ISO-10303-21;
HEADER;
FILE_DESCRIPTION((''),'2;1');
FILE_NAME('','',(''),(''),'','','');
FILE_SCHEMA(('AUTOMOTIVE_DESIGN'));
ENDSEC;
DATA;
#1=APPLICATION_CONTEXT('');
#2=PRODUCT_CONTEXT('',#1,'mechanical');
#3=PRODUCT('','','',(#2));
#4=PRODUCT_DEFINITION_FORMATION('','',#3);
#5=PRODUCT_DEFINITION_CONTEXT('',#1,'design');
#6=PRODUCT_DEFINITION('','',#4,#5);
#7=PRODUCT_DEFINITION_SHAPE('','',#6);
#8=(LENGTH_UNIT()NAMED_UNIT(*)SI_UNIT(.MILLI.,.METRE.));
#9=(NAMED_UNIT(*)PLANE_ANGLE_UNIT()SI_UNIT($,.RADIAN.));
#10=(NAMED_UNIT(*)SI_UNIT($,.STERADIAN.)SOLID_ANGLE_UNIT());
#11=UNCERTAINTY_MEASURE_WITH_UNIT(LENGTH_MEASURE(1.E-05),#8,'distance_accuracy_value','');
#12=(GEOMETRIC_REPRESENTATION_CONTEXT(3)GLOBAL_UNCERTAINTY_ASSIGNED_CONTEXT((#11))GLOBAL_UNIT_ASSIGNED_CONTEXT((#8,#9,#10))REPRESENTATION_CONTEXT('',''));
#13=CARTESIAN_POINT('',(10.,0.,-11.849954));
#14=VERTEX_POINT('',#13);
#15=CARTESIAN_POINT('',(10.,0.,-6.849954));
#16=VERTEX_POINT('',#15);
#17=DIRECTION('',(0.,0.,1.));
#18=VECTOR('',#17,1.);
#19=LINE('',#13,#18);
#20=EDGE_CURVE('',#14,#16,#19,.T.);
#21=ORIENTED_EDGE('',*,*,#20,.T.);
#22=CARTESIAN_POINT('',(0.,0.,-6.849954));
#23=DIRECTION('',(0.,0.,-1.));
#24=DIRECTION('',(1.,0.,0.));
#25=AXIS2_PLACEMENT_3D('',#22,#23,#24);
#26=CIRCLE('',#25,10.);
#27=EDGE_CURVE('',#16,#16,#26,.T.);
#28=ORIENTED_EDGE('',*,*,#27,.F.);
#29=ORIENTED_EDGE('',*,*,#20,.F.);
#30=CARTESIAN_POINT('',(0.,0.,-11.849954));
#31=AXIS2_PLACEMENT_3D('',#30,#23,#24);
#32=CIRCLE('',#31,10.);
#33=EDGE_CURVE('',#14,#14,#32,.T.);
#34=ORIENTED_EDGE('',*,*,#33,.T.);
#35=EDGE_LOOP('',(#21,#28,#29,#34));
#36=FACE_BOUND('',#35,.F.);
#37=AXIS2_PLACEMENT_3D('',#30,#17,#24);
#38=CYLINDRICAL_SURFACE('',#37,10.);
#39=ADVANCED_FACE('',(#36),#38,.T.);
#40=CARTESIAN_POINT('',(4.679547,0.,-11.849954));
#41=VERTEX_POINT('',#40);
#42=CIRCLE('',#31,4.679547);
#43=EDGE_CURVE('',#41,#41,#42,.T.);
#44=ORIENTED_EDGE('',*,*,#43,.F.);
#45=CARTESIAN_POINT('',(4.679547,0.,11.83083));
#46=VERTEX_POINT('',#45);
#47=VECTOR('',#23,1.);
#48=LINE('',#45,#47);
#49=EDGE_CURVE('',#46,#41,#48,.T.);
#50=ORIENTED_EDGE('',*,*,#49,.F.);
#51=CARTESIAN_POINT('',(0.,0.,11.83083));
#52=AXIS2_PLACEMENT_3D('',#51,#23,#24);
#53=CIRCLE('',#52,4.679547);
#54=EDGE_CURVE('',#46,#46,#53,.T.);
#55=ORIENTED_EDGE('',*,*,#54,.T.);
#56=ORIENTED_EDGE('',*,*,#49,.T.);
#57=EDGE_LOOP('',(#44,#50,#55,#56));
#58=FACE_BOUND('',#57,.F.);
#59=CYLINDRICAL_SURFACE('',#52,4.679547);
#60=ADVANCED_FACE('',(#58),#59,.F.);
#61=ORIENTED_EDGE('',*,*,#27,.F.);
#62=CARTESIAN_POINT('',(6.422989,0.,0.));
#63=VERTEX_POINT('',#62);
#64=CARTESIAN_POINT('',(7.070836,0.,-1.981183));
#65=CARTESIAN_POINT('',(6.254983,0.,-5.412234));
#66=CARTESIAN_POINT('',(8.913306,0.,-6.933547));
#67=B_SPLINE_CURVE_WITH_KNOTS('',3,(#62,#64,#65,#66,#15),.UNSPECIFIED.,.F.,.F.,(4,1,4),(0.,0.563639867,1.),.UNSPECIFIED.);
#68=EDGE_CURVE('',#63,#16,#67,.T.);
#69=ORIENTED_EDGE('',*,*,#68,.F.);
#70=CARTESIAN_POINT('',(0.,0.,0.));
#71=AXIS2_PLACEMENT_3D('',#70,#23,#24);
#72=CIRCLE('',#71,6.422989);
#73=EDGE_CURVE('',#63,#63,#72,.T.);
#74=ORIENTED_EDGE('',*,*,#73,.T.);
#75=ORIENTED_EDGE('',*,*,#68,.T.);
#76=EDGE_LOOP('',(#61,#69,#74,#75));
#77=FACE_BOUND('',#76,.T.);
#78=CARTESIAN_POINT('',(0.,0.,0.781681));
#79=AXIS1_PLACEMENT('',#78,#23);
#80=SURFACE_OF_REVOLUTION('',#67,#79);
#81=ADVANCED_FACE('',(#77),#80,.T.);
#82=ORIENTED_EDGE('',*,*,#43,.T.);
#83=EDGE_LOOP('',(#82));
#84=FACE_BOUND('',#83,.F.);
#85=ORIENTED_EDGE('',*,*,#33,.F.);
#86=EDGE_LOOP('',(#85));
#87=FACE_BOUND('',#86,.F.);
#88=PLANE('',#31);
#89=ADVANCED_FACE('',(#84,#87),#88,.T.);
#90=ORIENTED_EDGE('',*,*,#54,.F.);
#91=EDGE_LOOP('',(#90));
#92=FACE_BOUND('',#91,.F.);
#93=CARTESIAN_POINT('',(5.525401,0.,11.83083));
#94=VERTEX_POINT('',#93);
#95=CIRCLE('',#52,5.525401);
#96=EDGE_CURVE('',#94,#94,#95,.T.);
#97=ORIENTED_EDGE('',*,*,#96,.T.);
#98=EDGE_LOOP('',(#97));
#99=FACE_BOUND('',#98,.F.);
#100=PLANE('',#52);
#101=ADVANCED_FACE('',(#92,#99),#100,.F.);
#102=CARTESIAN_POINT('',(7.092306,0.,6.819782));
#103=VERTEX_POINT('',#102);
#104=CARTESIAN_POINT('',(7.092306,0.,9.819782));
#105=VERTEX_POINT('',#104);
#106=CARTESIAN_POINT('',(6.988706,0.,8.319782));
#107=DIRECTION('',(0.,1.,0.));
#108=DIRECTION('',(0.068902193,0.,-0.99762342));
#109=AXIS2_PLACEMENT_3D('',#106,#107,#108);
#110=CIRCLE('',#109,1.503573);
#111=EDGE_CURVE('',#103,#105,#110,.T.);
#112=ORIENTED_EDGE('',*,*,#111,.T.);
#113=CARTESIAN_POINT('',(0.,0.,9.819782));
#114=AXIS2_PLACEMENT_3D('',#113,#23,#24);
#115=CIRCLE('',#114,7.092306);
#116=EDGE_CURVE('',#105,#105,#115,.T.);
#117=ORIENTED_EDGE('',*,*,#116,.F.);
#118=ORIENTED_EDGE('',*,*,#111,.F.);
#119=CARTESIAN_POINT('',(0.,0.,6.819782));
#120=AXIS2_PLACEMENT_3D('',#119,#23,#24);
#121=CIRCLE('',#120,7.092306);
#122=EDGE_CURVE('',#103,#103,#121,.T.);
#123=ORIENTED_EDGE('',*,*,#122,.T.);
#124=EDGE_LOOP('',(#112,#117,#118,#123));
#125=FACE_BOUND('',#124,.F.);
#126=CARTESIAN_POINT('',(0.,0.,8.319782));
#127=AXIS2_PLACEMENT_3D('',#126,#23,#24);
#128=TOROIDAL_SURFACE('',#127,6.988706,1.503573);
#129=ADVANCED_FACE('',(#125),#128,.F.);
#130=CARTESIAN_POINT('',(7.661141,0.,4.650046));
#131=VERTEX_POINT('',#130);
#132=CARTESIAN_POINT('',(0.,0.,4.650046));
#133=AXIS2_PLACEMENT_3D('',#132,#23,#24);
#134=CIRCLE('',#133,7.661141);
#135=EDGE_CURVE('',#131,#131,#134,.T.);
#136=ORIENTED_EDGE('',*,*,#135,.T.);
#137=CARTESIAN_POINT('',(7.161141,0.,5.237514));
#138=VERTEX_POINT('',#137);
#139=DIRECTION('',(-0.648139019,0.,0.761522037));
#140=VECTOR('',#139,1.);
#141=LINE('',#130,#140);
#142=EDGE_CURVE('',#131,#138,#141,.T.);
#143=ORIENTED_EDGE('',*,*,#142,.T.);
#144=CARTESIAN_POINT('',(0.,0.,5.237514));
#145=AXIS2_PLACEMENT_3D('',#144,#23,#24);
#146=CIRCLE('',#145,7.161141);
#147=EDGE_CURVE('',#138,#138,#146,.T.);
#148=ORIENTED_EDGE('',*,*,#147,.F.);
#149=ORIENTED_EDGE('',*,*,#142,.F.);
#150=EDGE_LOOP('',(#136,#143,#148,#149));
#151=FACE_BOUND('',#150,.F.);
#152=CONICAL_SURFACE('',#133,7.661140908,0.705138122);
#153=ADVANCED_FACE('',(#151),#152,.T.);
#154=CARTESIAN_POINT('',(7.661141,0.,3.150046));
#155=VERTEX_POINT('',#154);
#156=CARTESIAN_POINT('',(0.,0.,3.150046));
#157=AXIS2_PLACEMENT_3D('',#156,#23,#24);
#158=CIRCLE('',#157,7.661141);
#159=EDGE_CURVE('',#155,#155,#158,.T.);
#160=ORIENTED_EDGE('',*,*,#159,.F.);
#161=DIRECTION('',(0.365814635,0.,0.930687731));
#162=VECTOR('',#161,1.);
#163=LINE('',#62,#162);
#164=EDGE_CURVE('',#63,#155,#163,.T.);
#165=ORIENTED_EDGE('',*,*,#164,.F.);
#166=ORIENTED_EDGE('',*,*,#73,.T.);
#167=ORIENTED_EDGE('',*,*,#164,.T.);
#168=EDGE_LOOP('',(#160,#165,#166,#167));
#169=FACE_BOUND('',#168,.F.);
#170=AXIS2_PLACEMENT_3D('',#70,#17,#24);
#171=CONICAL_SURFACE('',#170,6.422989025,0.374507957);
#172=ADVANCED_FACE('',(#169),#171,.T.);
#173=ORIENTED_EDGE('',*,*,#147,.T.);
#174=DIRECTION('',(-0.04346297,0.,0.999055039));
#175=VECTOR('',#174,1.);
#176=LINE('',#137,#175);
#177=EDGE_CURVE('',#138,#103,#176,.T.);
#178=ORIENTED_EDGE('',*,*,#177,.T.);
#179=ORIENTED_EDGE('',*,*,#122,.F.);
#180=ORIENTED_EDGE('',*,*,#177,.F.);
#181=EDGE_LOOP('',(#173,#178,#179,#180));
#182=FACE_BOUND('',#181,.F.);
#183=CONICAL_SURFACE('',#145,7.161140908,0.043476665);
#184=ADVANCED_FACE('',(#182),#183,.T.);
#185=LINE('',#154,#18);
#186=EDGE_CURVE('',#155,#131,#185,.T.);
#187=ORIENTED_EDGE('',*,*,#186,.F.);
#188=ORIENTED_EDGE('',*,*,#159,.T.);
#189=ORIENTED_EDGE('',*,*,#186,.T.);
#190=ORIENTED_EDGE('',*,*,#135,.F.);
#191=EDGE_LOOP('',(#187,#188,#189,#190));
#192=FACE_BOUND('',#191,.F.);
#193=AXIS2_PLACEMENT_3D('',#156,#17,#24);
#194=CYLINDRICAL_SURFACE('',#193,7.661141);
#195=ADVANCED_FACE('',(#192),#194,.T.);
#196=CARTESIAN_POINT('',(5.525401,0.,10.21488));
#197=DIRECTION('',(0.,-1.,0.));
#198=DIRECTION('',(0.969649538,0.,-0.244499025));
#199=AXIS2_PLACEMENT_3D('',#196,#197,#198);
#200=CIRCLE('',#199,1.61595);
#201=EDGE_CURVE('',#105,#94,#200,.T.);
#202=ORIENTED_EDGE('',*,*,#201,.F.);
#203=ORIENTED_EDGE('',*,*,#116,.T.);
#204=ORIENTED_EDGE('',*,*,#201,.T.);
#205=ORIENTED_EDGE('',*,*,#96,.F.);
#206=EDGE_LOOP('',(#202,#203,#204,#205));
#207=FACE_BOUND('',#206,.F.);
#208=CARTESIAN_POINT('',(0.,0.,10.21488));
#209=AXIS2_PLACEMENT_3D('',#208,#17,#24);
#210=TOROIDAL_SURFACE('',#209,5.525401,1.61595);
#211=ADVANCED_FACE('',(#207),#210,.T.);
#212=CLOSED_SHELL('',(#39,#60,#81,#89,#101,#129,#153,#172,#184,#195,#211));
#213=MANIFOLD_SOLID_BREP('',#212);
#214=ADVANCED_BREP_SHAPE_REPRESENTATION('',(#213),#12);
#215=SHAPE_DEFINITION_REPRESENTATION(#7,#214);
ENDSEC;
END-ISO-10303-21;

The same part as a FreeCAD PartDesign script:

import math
import FreeCAD as App
import Part
import Sketcher

doc = App.newDocument("Part")
params = doc.addObject("Spreadsheet::Sheet", "Params")
for row, (alias, value) in enumerate([
    ("sketch1_height", "5 mm"),
    ("sketch1_height2", "1.5 mm"),
    ("revolution_angle", "360 deg"),
], start=1):
    params.set(f"A{row}", alias)
    params.set(f"B{row}", "=" + value)
    params.setAlias(f"B{row}", alias)

body = doc.addObject("PartDesign::Body", "Body")

sketch1 = body.newObject("Sketcher::SketchObject", "Sketch")
sketch1.AttachmentSupport = (doc.getObject("XZ_Plane"), [""])
sketch1.MapMode = "FlatFace"
sketch1.addGeometry([
    Part.LineSegment(App.Vector(5.525401, 11.83083, 0), App.Vector(4.679547, 11.83083, 0)),
    Part.LineSegment(App.Vector(4.679547, 11.83083, 0), App.Vector(4.679547, -11.849954, 0)),
    Part.LineSegment(App.Vector(4.679547, -11.849954, 0), App.Vector(10, -11.849954, 0)),
    Part.LineSegment(App.Vector(10, -11.849954, 0), App.Vector(10, -6.849954, 0)),
    Part.BSplineCurve([App.Vector(6.422989, 0, 0), App.Vector(7.070836, -1.981183, 0), App.Vector(6.254983, -5.412234, 0), App.Vector(8.913306, -6.933547, 0), App.Vector(10, -6.849954, 0)], [4, 1, 4], [0, 0.563639867, 1], False, 3, [1, 1, 1, 1, 1], False),
    Part.LineSegment(App.Vector(6.422989, 0, 0), App.Vector(7.661141, 3.150046, 0)),
    Part.LineSegment(App.Vector(7.661141, 3.150046, 0), App.Vector(7.661141, 4.650046, 0)),
    Part.LineSegment(App.Vector(7.661141, 4.650046, 0), App.Vector(7.161141, 5.237514, 0)),
    Part.LineSegment(App.Vector(7.161141, 5.237514, 0), App.Vector(7.092306, 6.819782, 0)),
    Part.ArcOfCircle(Part.Circle(App.Vector(6.988706, 8.319782, 0), App.Vector(0, 0, 1), 1.503573), math.radians(86.049065), math.radians(273.950935)),
    Part.ArcOfCircle(Part.Circle(App.Vector(5.525401, 10.21488, 0), App.Vector(0, 0, 1), 1.61595), math.radians(-14.15223), math.radians(90)),
], False)
sketch1.addConstraint([
    Sketcher.Constraint("Block", 4),
    Sketcher.Constraint("Coincident", 0, 2, 1, 1),
    Sketcher.Constraint("Coincident", 1, 2, 2, 1),
    Sketcher.Constraint("Coincident", 2, 2, 3, 1),
    Sketcher.Constraint("Coincident", 3, 2, 4, 2),
    Sketcher.Constraint("Coincident", 4, 1, 5, 1),
    Sketcher.Constraint("Coincident", 5, 2, 6, 1),
    Sketcher.Constraint("Coincident", 6, 2, 7, 1),
    Sketcher.Constraint("Coincident", 7, 2, 8, 1),
    Sketcher.Constraint("Coincident", 8, 2, 9, 2),
    Sketcher.Constraint("Coincident", 9, 1, 10, 1),
    Sketcher.Constraint("Tangent", 10, 2, 0, 1),
    Sketcher.Constraint("Horizontal", 0),
    Sketcher.Constraint("Vertical", 1),
    Sketcher.Constraint("Horizontal", 2),
    Sketcher.Constraint("Vertical", 3),
    Sketcher.Constraint("Vertical", 6),
    Sketcher.Constraint("Vertical", 8, 2, 9, 1),
    Sketcher.Constraint("DistanceY", 3, 1, 3, 2, 5.0),
    Sketcher.Constraint("DistanceY", 6, 1, 6, 2, 1.5),
    Sketcher.Constraint("DistanceY", 3, 2, 5, 2, 10.0),
    Sketcher.Constraint("DistanceY", 8, 2, 9, 1, 3.0),
    Sketcher.Constraint("DistanceX", 7, 2, 6, 2, 0.5),
    Sketcher.Constraint("Radius", 10, 1.61595),
    Sketcher.Constraint("Radius", 9, 1.503573),
    Sketcher.Constraint("DistanceX", -1, 1, 10, 3, 5.525401),
    Sketcher.Constraint("DistanceY", 9, 3, 10, 3, 1.895098),
    Sketcher.Constraint("Distance", 7, 0.771439),
    Sketcher.Constraint("DistanceX", 0, 2, 0, 1, 0.845854),
    Sketcher.Constraint("DistanceY", 1, 2, 1, 1, 23.680785),
    Sketcher.Constraint("DistanceX", -1, 1, 5, 2, 7.661141),
])
sketch1.setExpression("Constraints[18]", "Params.sketch1_height")
sketch1.setExpression("Constraints[19]", "Params.sketch1_height2")
revolution = body.newObject("PartDesign::Revolution", "Revolution")
revolution.Profile = sketch1
revolution.ReferenceAxis = (sketch1, ["V_Axis"])
revolution.setExpression("Angle", "Params.revolution_angle")

doc.recompute()
